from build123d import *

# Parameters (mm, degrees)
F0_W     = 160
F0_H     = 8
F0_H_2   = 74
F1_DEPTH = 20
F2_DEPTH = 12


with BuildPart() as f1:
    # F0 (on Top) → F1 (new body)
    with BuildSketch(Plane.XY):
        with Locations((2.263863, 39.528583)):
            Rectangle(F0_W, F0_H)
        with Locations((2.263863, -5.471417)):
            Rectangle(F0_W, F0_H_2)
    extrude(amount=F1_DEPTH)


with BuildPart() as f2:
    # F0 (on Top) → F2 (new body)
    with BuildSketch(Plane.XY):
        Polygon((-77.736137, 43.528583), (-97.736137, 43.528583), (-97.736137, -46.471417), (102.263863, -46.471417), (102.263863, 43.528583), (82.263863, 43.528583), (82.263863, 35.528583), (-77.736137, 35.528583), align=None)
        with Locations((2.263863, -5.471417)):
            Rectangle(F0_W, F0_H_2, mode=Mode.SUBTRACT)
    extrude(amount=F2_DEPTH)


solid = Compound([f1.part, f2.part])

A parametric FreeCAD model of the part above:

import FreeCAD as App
import Part
import Sketcher

V = App.Vector


def add_polygon(sketch, points):
    """Adds a closed chain of lines whose ends are joined by coincident constraints."""
    first, n = sketch.GeometryCount, len(points)
    for a, b in zip(points, points[1:] + points[:1]):
        sketch.addGeometry(Part.LineSegment(App.Vector(*a, 0), App.Vector(*b, 0)), False)
    for i in range(n):
        sketch.addConstraint(Sketcher.Constraint("Coincident", first + i, 2, first + (i + 1) % n, 1))

doc = App.newDocument("Part")
body = doc.addObject("PartDesign::Body", "Body")
body.AllowCompound = True

# Sketch on XY plane
sketch1 = doc.addObject("Sketcher::SketchObject", "Sketch")
body.addObject(sketch1)
sketch1.AttachmentSupport = (doc.XY_Plane, [""])
sketch1.MapMode = "FlatFace"
add_polygon(sketch1, [(-77.736137, 43.528583), (-77.736137, 35.528583), (82.263863, 35.528583), (82.263863, 43.528583)])  # lines 0-3
add_polygon(sketch1, [(-77.736137, 31.528583), (-77.736137, -42.471417), (82.263863, -42.471417), (82.263863, 31.528583)])  # lines 4-7
sketch1.addConstraint(Sketcher.Constraint("Vertical", 0))
sketch1.addConstraint(Sketcher.Constraint("Horizontal", 1))
sketch1.addConstraint(Sketcher.Constraint("Vertical", 2))
sketch1.addConstraint(Sketcher.Constraint("Horizontal", 3))
sketch1.addConstraint(Sketcher.Constraint("Vertical", 4))
sketch1.addConstraint(Sketcher.Constraint("Horizontal", 5))
sketch1.addConstraint(Sketcher.Constraint("Vertical", 6))
sketch1.addConstraint(Sketcher.Constraint("Horizontal", 7))
sketch1.addConstraint(Sketcher.Constraint("Vertical", 3, 2, 4, 2))
sketch1.addConstraint(Sketcher.Constraint("Vertical", 2, 2, 5, 2))
sketch1.addConstraint(Sketcher.Constraint("DistanceX", 1, 1, 1, 2, 160.0))
sketch1.addConstraint(Sketcher.Constraint("DistanceY", 0, 2, 0, 1, 8.0))
sketch1.addConstraint(Sketcher.Constraint("DistanceY", 4, 2, 4, 1, 74.0))
sketch1.addConstraint(Sketcher.Constraint("DistanceY", 4, 2, 0, 2, 78.0))
sketch1.addConstraint(Sketcher.Constraint("DistanceX", 0, 2, -1, 1, 77.736137))
sketch1.addConstraint(Sketcher.Constraint("DistanceY", -1, 1, 0, 2, 35.528583))
pad1 = doc.addObject("PartDesign::Pad", "Pad")
body.addObject(pad1)
pad1.Profile = sketch1
pad1.Length = 20
body2 = doc.addObject("PartDesign::Body", "Body001")

# Sketch on XY plane
sketch2 = doc.addObject("Sketcher::SketchObject", "Sketch001")
body2.addObject(sketch2)
sketch2.AttachmentSupport = (doc.getObject("XY_Plane001"), [""])
sketch2.MapMode = "FlatFace"
add_polygon(sketch2, [(-77.736137, 43.528583), (-97.736137, 43.528583), (-97.736137, -46.471417), (102.263863, -46.471417), (102.263863, 43.528583), (82.263863, 43.528583), (82.263863, 35.528583), (-77.736137, 35.528583)])  # lines 0-7
add_polygon(sketch2, [(82.263863, -42.471417), (-77.736137, -42.471417), (-77.736137, 31.528583), (82.263863, 31.528583)])  # lines 8-11
sketch2.addConstraint(Sketcher.Constraint("Horizontal", 0))
sketch2.addConstraint(Sketcher.Constraint("Vertical", 1))
sketch2.addConstraint(Sketcher.Constraint("Horizontal", 2))
sketch2.addConstraint(Sketcher.Constraint("Vertical", 3))
sketch2.addConstraint(Sketcher.Constraint("Horizontal", 4))
sketch2.addConstraint(Sketcher.Constraint("Vertical", 5))
sketch2.addConstraint(Sketcher.Constraint("Horizontal", 6))
sketch2.addConstraint(Sketcher.Constraint("Vertical", 7))
sketch2.addConstraint(Sketcher.Constraint("Horizontal", 8))
sketch2.addConstraint(Sketcher.Constraint("Vertical", 9))
sketch2.addConstraint(Sketcher.Constraint("Horizontal", 10))
sketch2.addConstraint(Sketcher.Constraint("Vertical", 11))
sketch2.addConstraint(Sketcher.Constraint("Horizontal", 0, 2, 3, 2))
sketch2.addConstraint(Sketcher.Constraint("Vertical", 7, 2, 8, 2))
sketch2.addConstraint(Sketcher.Constraint("Vertical", 5, 2, 10, 2))
sketch2.addConstraint(Sketcher.Constraint("Equal", 0, 4))
sketch2.addConstraint(Sketcher.Constraint("DistanceX", 0, 2, 0, 1, 20.0))
sketch2.addConstraint(Sketcher.Constraint("DistanceX", 2, 1, 2, 2, 200.0))
sketch2.addConstraint(Sketcher.Constraint("DistanceY", 1, 2, 1, 1, 90.0))
sketch2.addConstraint(Sketcher.Constraint("DistanceY", 5, 2, 5, 1, 8.0))
sketch2.addConstraint(Sketcher.Constraint("DistanceY", 9, 1, 9, 2, 74.0))
sketch2.addConstraint(Sketcher.Constraint("DistanceY", 1, 2, 8, 2, 4.0))
sketch2.addConstraint(Sketcher.Constraint("DistanceX", 0, 2, -1, 1, 97.736137))
sketch2.addConstraint(Sketcher.Constraint("DistanceY", -1, 1, 0, 2, 43.528583))
pad2 = doc.addObject("PartDesign::Pad", "Pad001")
body2.addObject(pad2)
pad2.Profile = sketch2
pad2.Length = 12

doc.recompute()
